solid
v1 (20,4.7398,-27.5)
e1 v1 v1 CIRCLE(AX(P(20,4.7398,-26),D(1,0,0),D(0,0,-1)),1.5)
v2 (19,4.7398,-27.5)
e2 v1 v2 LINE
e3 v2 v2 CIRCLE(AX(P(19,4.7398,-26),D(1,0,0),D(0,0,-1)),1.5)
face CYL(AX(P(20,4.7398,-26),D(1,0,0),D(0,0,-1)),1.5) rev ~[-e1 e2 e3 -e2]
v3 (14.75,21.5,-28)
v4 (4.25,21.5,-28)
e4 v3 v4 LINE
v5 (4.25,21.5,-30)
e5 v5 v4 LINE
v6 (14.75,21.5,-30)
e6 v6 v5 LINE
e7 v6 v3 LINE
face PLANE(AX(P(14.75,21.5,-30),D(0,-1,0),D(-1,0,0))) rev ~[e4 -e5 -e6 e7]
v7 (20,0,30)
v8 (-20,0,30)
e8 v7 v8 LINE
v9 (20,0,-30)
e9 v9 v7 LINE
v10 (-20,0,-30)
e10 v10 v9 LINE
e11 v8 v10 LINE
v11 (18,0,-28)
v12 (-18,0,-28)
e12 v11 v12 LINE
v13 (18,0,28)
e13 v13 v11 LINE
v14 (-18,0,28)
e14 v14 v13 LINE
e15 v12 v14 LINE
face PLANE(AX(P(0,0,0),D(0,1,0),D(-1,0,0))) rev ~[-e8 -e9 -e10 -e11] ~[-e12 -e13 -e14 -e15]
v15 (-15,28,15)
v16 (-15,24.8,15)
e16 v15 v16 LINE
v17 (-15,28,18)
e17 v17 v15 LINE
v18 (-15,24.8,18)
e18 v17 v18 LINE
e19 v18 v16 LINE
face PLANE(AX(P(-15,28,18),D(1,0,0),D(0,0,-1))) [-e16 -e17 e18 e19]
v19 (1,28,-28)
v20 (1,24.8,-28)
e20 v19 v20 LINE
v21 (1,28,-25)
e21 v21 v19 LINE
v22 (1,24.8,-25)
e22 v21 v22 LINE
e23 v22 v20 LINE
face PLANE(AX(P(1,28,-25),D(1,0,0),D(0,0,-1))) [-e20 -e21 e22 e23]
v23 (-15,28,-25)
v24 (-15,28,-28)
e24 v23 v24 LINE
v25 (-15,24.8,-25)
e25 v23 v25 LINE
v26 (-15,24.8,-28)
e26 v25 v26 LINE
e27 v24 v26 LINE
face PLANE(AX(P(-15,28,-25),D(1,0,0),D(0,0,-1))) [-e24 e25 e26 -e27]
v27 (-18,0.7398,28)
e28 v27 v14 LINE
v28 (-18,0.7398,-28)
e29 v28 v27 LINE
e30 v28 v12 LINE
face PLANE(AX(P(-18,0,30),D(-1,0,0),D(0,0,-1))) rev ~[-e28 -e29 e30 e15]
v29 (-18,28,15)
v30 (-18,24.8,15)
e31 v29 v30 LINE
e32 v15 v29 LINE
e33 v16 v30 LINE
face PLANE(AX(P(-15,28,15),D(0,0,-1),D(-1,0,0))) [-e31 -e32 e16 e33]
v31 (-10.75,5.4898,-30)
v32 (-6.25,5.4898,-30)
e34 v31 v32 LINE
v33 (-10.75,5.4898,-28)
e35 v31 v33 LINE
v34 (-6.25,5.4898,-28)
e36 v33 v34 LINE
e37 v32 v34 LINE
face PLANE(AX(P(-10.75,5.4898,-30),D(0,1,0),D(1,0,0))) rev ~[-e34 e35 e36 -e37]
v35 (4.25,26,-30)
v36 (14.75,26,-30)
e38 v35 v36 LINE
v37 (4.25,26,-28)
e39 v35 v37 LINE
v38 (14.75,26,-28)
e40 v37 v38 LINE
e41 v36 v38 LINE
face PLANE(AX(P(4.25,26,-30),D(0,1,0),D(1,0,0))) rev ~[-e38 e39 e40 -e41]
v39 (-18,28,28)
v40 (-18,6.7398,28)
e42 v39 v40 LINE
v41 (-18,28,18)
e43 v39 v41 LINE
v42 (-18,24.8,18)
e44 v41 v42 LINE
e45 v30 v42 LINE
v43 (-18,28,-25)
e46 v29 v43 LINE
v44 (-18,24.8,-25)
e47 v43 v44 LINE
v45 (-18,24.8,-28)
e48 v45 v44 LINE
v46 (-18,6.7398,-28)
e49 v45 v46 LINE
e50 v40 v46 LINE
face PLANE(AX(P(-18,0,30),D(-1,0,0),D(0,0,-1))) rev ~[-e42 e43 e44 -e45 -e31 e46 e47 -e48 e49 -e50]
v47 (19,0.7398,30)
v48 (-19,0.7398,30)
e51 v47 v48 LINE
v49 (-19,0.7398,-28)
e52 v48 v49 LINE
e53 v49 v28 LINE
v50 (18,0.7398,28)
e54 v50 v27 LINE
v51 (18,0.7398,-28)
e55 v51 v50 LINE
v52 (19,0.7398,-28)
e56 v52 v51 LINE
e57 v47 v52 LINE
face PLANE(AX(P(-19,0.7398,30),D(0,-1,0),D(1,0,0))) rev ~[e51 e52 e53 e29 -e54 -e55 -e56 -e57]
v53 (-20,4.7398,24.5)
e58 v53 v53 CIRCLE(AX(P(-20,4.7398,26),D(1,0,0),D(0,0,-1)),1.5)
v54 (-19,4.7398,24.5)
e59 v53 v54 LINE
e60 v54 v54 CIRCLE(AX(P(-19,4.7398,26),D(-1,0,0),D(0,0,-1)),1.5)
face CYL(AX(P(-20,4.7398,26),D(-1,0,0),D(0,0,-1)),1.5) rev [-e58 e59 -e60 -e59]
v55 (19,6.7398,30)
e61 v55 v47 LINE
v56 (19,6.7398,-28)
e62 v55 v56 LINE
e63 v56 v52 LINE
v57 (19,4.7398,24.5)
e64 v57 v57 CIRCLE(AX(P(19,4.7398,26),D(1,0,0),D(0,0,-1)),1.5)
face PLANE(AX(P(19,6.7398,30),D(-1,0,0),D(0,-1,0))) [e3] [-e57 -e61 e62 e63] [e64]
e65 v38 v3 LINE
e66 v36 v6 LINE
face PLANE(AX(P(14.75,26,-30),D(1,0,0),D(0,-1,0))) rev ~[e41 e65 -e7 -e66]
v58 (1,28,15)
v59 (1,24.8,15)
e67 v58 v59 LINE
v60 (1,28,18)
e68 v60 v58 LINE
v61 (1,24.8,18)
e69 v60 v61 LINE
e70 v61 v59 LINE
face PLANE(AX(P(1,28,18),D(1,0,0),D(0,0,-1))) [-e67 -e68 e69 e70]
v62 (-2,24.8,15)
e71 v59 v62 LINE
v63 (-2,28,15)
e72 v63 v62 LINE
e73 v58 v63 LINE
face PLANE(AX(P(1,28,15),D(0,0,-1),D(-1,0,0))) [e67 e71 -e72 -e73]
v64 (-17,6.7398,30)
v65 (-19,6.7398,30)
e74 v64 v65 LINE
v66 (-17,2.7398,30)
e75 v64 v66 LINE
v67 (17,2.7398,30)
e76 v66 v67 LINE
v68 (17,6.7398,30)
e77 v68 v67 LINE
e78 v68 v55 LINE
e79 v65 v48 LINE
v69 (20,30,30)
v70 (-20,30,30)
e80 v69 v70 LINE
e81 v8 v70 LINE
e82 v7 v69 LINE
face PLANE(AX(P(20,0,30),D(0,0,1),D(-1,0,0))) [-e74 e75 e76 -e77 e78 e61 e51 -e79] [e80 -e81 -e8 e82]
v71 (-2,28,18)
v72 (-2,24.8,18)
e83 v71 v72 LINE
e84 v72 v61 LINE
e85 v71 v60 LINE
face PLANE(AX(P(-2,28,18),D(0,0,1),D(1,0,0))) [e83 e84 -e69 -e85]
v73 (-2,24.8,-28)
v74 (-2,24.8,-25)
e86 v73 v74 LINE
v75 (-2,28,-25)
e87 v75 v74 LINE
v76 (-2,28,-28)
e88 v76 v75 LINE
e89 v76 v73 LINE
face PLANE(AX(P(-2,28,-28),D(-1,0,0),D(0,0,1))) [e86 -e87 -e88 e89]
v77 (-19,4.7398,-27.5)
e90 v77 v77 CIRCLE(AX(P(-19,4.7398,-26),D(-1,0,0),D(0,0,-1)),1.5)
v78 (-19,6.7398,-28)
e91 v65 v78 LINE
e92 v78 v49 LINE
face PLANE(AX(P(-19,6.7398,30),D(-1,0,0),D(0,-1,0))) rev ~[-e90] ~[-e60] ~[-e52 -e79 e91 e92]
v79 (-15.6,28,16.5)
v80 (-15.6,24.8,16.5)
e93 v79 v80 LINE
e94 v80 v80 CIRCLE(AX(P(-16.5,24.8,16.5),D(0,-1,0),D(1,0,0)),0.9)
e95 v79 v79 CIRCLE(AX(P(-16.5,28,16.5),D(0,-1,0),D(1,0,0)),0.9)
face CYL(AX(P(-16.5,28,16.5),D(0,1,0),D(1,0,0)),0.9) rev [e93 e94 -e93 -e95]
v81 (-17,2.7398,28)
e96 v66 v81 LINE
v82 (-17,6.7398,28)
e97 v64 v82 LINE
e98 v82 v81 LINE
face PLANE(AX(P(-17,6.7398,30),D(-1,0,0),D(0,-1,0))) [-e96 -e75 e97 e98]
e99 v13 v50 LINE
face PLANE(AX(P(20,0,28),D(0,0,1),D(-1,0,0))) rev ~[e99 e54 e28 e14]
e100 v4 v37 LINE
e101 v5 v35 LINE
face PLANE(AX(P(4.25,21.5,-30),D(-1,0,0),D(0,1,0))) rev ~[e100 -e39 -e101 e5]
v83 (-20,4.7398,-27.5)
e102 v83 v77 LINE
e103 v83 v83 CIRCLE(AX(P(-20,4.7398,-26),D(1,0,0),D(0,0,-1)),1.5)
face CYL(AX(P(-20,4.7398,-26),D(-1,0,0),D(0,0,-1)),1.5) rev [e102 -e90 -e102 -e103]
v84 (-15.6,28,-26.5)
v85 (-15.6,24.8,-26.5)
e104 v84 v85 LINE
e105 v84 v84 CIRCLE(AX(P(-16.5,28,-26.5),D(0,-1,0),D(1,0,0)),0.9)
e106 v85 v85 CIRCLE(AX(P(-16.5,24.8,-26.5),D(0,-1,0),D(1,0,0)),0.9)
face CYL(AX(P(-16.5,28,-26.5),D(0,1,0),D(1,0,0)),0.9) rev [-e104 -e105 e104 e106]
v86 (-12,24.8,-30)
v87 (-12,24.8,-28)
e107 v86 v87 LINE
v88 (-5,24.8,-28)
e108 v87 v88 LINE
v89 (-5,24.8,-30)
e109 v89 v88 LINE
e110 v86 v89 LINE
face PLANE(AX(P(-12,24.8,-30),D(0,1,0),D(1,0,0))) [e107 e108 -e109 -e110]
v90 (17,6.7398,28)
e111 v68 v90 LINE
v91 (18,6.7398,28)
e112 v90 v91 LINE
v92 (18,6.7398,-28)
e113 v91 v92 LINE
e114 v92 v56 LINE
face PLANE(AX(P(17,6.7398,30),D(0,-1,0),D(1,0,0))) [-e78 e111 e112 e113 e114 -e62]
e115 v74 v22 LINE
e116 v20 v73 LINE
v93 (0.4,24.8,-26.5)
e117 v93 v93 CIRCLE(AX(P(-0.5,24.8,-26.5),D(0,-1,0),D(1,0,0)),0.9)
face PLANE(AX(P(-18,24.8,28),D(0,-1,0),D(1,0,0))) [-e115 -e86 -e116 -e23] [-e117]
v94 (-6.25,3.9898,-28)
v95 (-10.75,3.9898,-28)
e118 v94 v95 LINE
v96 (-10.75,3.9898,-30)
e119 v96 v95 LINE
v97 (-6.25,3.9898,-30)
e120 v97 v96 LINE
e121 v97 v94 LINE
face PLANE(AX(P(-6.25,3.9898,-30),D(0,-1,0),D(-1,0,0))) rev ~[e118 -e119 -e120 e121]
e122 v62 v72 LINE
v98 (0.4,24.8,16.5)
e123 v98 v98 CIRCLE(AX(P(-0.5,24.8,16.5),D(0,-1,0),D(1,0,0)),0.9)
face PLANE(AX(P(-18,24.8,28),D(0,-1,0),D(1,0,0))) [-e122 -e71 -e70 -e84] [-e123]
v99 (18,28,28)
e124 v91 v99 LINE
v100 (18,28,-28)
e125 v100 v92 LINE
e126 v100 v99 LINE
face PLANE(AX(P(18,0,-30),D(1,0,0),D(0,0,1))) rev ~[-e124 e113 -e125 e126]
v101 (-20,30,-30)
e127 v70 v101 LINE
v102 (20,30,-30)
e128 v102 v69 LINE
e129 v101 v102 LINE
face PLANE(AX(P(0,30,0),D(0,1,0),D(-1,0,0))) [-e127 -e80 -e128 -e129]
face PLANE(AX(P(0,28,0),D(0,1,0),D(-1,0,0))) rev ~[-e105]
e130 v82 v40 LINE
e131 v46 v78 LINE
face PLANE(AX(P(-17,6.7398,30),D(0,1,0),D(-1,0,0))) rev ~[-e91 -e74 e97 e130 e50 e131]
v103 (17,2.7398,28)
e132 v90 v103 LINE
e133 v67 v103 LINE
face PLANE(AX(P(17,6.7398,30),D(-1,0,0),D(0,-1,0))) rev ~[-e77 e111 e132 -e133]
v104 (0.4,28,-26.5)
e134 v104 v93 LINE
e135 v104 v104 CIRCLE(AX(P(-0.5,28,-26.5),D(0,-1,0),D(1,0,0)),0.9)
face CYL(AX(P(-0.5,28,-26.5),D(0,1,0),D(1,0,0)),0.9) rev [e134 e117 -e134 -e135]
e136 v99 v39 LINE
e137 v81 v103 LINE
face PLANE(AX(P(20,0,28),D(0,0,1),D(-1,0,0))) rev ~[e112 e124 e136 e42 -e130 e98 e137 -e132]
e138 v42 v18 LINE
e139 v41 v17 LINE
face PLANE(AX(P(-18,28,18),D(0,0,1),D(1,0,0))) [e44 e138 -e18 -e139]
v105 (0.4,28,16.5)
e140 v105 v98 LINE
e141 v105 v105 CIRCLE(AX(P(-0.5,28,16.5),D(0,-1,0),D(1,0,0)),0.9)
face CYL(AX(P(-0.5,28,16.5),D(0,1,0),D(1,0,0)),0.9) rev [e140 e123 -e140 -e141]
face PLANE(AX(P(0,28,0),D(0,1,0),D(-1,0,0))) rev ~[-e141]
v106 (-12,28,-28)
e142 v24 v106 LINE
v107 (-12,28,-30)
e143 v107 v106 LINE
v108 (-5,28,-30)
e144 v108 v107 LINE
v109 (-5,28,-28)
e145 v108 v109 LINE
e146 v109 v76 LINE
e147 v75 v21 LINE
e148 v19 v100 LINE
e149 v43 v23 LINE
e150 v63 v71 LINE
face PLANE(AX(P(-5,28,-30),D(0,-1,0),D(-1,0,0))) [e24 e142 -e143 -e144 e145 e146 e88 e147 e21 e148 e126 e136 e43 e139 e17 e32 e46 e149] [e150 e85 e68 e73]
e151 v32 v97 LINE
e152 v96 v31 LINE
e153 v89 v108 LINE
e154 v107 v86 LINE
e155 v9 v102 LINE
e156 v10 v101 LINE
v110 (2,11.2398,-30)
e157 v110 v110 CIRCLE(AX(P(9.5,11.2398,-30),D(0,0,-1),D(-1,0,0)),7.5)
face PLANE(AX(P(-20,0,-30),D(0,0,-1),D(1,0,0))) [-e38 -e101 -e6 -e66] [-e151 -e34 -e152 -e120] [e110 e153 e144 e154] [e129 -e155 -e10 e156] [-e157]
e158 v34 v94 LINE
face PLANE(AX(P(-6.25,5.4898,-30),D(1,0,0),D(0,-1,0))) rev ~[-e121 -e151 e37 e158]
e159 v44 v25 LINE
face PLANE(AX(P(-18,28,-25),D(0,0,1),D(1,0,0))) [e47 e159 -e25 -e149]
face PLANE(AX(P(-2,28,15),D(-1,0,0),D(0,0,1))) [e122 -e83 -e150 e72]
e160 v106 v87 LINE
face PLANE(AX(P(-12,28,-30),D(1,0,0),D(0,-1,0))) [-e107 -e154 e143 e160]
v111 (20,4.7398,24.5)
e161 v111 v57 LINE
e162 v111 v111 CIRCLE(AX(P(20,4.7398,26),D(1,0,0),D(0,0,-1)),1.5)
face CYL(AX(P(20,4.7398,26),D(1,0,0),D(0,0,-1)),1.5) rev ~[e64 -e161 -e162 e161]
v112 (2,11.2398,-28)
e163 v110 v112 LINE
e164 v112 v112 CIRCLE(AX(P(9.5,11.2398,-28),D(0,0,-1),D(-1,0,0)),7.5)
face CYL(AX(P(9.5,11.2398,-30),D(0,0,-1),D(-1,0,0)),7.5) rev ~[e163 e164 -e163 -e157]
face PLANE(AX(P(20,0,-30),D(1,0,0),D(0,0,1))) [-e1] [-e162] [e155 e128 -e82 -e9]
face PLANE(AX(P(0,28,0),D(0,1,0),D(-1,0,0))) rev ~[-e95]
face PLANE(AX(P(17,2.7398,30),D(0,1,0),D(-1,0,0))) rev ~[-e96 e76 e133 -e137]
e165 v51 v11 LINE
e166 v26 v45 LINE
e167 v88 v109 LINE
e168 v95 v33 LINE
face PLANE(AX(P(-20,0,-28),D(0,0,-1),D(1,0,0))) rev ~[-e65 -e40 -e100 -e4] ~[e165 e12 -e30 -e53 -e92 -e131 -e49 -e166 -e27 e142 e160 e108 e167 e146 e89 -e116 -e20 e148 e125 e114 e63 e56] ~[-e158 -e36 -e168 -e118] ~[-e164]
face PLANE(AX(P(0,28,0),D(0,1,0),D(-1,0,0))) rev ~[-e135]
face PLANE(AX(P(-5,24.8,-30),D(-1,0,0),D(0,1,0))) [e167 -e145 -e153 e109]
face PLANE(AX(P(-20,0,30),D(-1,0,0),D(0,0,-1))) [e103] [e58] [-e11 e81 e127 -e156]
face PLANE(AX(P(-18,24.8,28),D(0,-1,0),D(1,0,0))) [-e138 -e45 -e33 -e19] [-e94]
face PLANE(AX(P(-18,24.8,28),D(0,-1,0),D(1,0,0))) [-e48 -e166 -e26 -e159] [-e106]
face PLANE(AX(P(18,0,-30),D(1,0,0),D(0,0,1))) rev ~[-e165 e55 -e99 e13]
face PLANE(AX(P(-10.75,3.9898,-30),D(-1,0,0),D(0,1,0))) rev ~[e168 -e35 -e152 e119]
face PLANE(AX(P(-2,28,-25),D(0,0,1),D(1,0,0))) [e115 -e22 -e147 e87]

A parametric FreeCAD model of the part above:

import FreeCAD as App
import Part
import Sketcher
Q = App.Units.Quantity


def faces_at(feature, points):
    """Names of the faces that lie closest to the given points."""
    faces = feature.Shape.Faces
    near = lambda p: min(range(len(faces)), key=lambda i: faces[i].distToShape(Part.Vertex(*p))[0])
    return sorted({f"Face{near(p) + 1}" for p in points})


def add_polygon(sketch, points):
    """Adds a closed chain of lines whose ends are joined by coincident constraints."""
    first, n = sketch.GeometryCount, len(points)
    for a, b in zip(points, points[1:] + points[:1]):
        sketch.addGeometry(Part.LineSegment(App.Vector(*a, 0), App.Vector(*b, 0)), False)
    for i in range(n):
        sketch.addConstraint(Sketcher.Constraint("Coincident", first + i, 2, first + (i + 1) % n, 1))

doc = App.newDocument("Part")
body = doc.addObject("PartDesign::Body", "Body")

sketch1 = body.newObject("Sketcher::SketchObject", "Sketch")
sketch1.AttachmentSupport = (doc.getObject("XZ_Plane"), [""])
sketch1.MapMode = "FlatFace"
add_polygon(sketch1, [(-20, 30), (20, 30), (20, -30), (-20, -30)])
sketch1.addConstraint(Sketcher.Constraint("Horizontal", 0))
sketch1.addConstraint(Sketcher.Constraint("Vertical", 1))
sketch1.addConstraint(Sketcher.Constraint("Horizontal", 2))
sketch1.addConstraint(Sketcher.Constraint("Vertical", 3))
sketch1.addConstraint(Sketcher.Constraint("Symmetric", 0, 2, 2, 2, -1, 1))
sketch1.addConstraint(Sketcher.Constraint("DistanceX", 0, 1, 0, 2, Q("40 mm")))
sketch1.addConstraint(Sketcher.Constraint("DistanceY", 1, 2, 1, 1, Q("60 mm")))
pad1 = body.newObject("PartDesign::Pad", "Pad")
pad1.Profile = sketch1
pad1.Length = 30
pad1.Reversed = True
doc.recompute()

thickness = body.newObject("PartDesign::Thickness", "Thickness")
thickness.Base = (pad1, faces_at(pad1, [(-6.667, 0, -10)]))
thickness.Value = 2
thickness.Reversed = True
thickness.Join = "Intersection"

sketch2 = body.newObject("Sketcher::SketchObject", "Sketch001")
sketch2.AttachmentSupport = (doc.getObject("XY_Plane"), [""])
sketch2.MapMode = "FlatFace"
sketch2.AttachmentOffset = App.Placement(App.Vector(0, 0, 30), App.Rotation())
add_polygon(sketch2, [(-17, 2.7), (-17, 6.7), (-19, 6.7), (-19, 0.7), (19, 0.7), (19, 6.7), (17, 6.7), (17, 2.7)])
sketch2.addConstraint(Sketcher.Constraint("Vertical", 0))
sketch2.addConstraint(Sketcher.Constraint("Horizontal", 1))
sketch2.addConstraint(Sketcher.Constraint("Vertical", 2))
sketch2.addConstraint(Sketcher.Constraint("Horizontal", 3))
sketch2.addConstraint(Sketcher.Constraint("Vertical", 4))
sketch2.addConstraint(Sketcher.Constraint("Horizontal", 5))
sketch2.addConstraint(Sketcher.Constraint("Vertical", 6))
sketch2.addConstraint(Sketcher.Constraint("Horizontal", 7))
sketch2.addConstraint(Sketcher.Constraint("Symmetric", 1, 2, 4, 2, -2))
sketch2.addConstraint(Sketcher.Constraint("Equal", 1, 5))
sketch2.addConstraint(Sketcher.Constraint("DistanceX", 1, 2, 1, 1, Q("2 mm")))
sketch2.addConstraint(Sketcher.Constraint("DistanceY", 2, 2, 2, 1, Q("6 mm")))
sketch2.addConstraint(Sketcher.Constraint("DistanceY", 3, 2, 6, 2, Q("2 mm")))
sketch2.addConstraint(Sketcher.Constraint("DistanceX", 3, 1, 3, 2, Q("38 mm")))
sketch2.addConstraint(Sketcher.Constraint("DistanceY", -1, 1, 0, 2, Q("6.7398 mm")))
pocket1 = body.newObject("PartDesign::Pocket", "Pocket")
pocket1.Profile = sketch2
pocket1.Length = 58

sketch3 = body.newObject("Sketcher::SketchObject", "Sketch002")
sketch3.AttachmentSupport = (doc.getObject("YZ_Plane"), [""])
sketch3.MapMode = "FlatFace"
sketch3.AttachmentOffset = App.Placement(App.Vector(0, 0, 20), App.Rotation())
sketch3.addGeometry(Part.Circle(App.Vector(4.7, 26, 0), App.Vector(0, 0, 1), 1.5), False)
sketch3.addGeometry(Part.Circle(App.Vector(4.7, -26, 0), App.Vector(0, 0, 1), 1.5), False)
sketch3.addConstraint(Sketcher.Constraint("Equal", 0, 1))
sketch3.addConstraint(Sketcher.Constraint("Symmetric", 0, 3, 1, 3, -1))
sketch3.addConstraint(Sketcher.Constraint("Diameter", 0, Q("3 mm")))
sketch3.addConstraint(Sketcher.Constraint("DistanceY", -1, 1, 0, 3, Q("26 mm")))
sketch3.addConstraint(Sketcher.Constraint("DistanceX", -1, 1, 0, 3, Q("4.7398 mm")))
pocket2 = body.newObject("PartDesign::Pocket", "Pocket001")
pocket2.Profile = sketch3
pocket2.Length = 2
doc.recompute()

mirrored = body.newObject("PartDesign::Mirrored", "Mirrored")
mirrored.Originals = [pocket2]
mirrored.MirrorPlane = (doc.getObject("YZ_Plane"), [""])
body.Tip = mirrored

sketch4 = body.newObject("Sketcher::SketchObject", "Sketch003")
sketch4.AttachmentSupport = (doc.getObject("XZ_Plane"), [""])
sketch4.MapMode = "FlatFace"
sketch4.AttachmentOffset = App.Placement(App.Vector(0, 0, -28), App.Rotation())
add_polygon(sketch4, [(-18, -28), (-15, -28), (-15, -25), (-18, -25)])
sketch4.addGeometry(Part.Circle(App.Vector(-16.5, -26.5, 0), App.Vector(0, 0, 1), 0.9), False)
add_polygon(sketch4, [(-18, 15), (-15, 15), (-15, 18), (-18, 18)])
sketch4.addGeometry(Part.Circle(App.Vector(-16.5, 16.5, 0), App.Vector(0, 0, 1), 0.9), False)
add_polygon(sketch4, [(-2, -28), (1, -28), (1, -25), (-2, -25)])
sketch4.addGeometry(Part.Circle(App.Vector(-0.5, -26.5, 0), App.Vector(0, 0, 1), 0.9), False)
add_polygon(sketch4, [(-2, 15), (1, 15), (1, 18), (-2, 18)])
sketch4.addGeometry(Part.Circle(App.Vector(-0.5, 16.5, 0), App.Vector(0, 0, 1), 0.9), False)
sketch4.addConstraint(Sketcher.Constraint("Horizontal", 0))
sketch4.addConstraint(Sketcher.Constraint("Vertical", 1))
sketch4.addConstraint(Sketcher.Constraint("Horizontal", 2))
sketch4.addConstraint(Sketcher.Constraint("Vertical", 3))
sketch4.addConstraint(Sketcher.Constraint("Horizontal", 5))
sketch4.addConstraint(Sketcher.Constraint("Vertical", 6))
sketch4.addConstraint(Sketcher.Constraint("Horizontal", 7))
sketch4.addConstraint(Sketcher.Constraint("Vertical", 8))
sketch4.addConstraint(Sketcher.Constraint("Horizontal", 10))
sketch4.addConstraint(Sketcher.Constraint("Vertical", 11))
sketch4.addConstraint(Sketcher.Constraint("Horizontal", 12))
sketch4.addConstraint(Sketcher.Constraint("Vertical", 13))
sketch4.addConstraint(Sketcher.Constraint("Horizontal", 15))
sketch4.addConstraint(Sketcher.Constraint("Vertical", 16))
sketch4.addConstraint(Sketcher.Constraint("Horizontal", 17))
sketch4.addConstraint(Sketcher.Constraint("Vertical", 18))
sketch4.addConstraint(Sketcher.Constraint("Equal", 4, 9))
sketch4.addConstraint(Sketcher.Constraint("Equal", 9, 14))
sketch4.addConstraint(Sketcher.Constraint("Equal", 14, 19))
sketch4.addConstraint(Sketcher.Constraint("Horizontal", 4, 3, 14, 3))
sketch4.addConstraint(Sketcher.Constraint("Horizontal", 9, 3, 19, 3))
sketch4.addConstraint(Sketcher.Constraint("Horizontal", 3, 2, 10, 2))
sketch4.addConstraint(Sketcher.Constraint("Horizontal", 2, 2, 11, 2))
sketch4.addConstraint(Sketcher.Constraint("Horizontal", 8, 2, 15, 2))
sketch4.addConstraint(Sketcher.Constraint("Horizontal", 7, 2, 16, 2))
sketch4.addConstraint(Sketcher.Constraint("Vertical", 4, 3, 9, 3))
sketch4.addConstraint(Sketcher.Constraint("Vertical", 14, 3, 19, 3))
sketch4.addConstraint(Sketcher.Constraint("Vertical", 1, 2, 5, 2))
sketch4.addConstraint(Sketcher.Constraint("Vertical", 3, 2, 7, 2))
sketch4.addConstraint(Sketcher.Constraint("Vertical", 11, 2, 15, 2))
sketch4.addConstraint(Sketcher.Constraint("Vertical", 13, 2, 17, 2))
sketch4.addConstraint(Sketcher.Constraint("Equal", 7, 10))
sketch4.addConstraint(Sketcher.Constraint("Equal", 17, 1))
sketch4.addConstraint(Sketcher.Constraint("Equal", 3, 6))
sketch4.addConstraint(Sketcher.Constraint("Diameter", 4, Q("1.8 mm")))
sketch4.addConstraint(Sketcher.Constraint("DistanceX", 0, 1, 0, 2, Q("3 mm")))
sketch4.addConstraint(Sketcher.Constraint("DistanceX", 2, 2, -1, 1, Q("18 mm")))
sketch4.addConstraint(Sketcher.Constraint("DistanceY", -1, 1, 6, 2, Q("18 mm")))
sketch4.addConstraint(Sketcher.Constraint("DistanceX", -1, 1, 10, 2, Q("1 mm")))
sketch4.addConstraint(Sketcher.Constraint("DistanceY", 4, 3, 9, 3, Q("43 mm")))
sketch4.addConstraint(Sketcher.Constraint("DistanceX", 4, 3, 14, 3, Q("16 mm")))
sketch4.addConstraint(Sketcher.Constraint("DistanceY", 1, 2, 6, 2, Q("43 mm")))
sketch4.addConstraint(Sketcher.Constraint("DistanceX", 4, 3, -1, 1, Q("16.5 mm")))
sketch4.addConstraint(Sketcher.Constraint("DistanceY", 4, 3, -1, 1, Q("26.5 mm")))
pad2 = body.newObject("PartDesign::Pad", "Pad001")
pad2.Profile = sketch4
pad2.Length = 3.2

sketch5 = body.newObject("Sketcher::SketchObject", "Sketch004")
sketch5.AttachmentSupport = (doc.getObject("XY_Plane"), [""])
sketch5.MapMode = "FlatFace"
sketch5.AttachmentOffset = App.Placement(App.Vector(0, 0, -30), App.Rotation())
add_polygon(sketch5, [(-5, 24.8), (-12, 24.8), (-12, 28), (-5, 28)])
sketch5.addConstraint(Sketcher.Constraint("Horizontal", 0))
sketch5.addConstraint(Sketcher.Constraint("Vertical", 1))
sketch5.addConstraint(Sketcher.Constraint("Horizontal", 2))
sketch5.addConstraint(Sketcher.Constraint("Vertical", 3))
sketch5.addConstraint(Sketcher.Constraint("DistanceX", 0, 2, 0, 1, Q("7 mm")))
sketch5.addConstraint(Sketcher.Constraint("DistanceY", 1, 1, 1, 2, Q("3.2 mm")))
sketch5.addConstraint(Sketcher.Constraint("DistanceX", 0, 2, -1, 1, Q("12 mm")))
sketch5.addConstraint(Sketcher.Constraint("DistanceY", -1, 1, 1, 2, Q("28 mm")))
pocket3 = body.newObject("PartDesign::Pocket", "Pocket002")
pocket3.Profile = sketch5
pocket3.Length = 2
pocket3.Reversed = True

sketch6 = body.newObject("Sketcher::SketchObject", "Sketch005")
sketch6.AttachmentSupport = (doc.getObject("XY_Plane"), [""])
sketch6.MapMode = "FlatFace"
sketch6.AttachmentOffset = App.Placement(App.Vector(0, 0, -30), App.Rotation())
sketch6.addGeometry(Part.Circle(App.Vector(9.5, 11.2, 0), App.Vector(0, 0, 1), 7.5), False)
add_polygon(sketch6, [(14.8, 26), (14.8, 21.5), (4.2, 21.5), (4.2, 26)])
add_polygon(sketch6, [(-6.2, 5.5), (-6.2, 4), (-10.8, 4), (-10.8, 5.5)])
sketch6.addConstraint(Sketcher.Constraint("Vertical", 1))
sketch6.addConstraint(Sketcher.Constraint("Horizontal", 2))
sketch6.addConstraint(Sketcher.Constraint("Vertical", 3))
sketch6.addConstraint(Sketcher.Constraint("Horizontal", 4))
sketch6.addConstraint(Sketcher.Constraint("Vertical", 5))
sketch6.addConstraint(Sketcher.Constraint("Horizontal", 6))
sketch6.addConstraint(Sketcher.Constraint("Vertical", 7))
sketch6.addConstraint(Sketcher.Constraint("Horizontal", 8))
sketch6.addConstraint(Sketcher.Constraint("Equal", 8, 1))
sketch6.addConstraint(Sketcher.Constraint("Diameter", 0, Q("15 mm")))
sketch6.addConstraint(Sketcher.Constraint("DistanceX", 2, 2, 2, 1, Q("10.5 mm")))
sketch6.addConstraint(Sketcher.Constraint("DistanceX", 6, 2, 6, 1, Q("4.5 mm")))
sketch6.addConstraint(Sketcher.Constraint("DistanceY", 5, 2, 5, 1, Q("1.5 mm")))
sketch6.addConstraint(Sketcher.Constraint("DistanceX", 6, 2, 2, 2, Q("15 mm")))
sketch6.addConstraint(Sketcher.Constraint("DistanceY", -1, 1, 3, 2, Q("26 mm")))
sketch6.addConstraint(Sketcher.Constraint("DistanceX", -1, 1, 0, 3, Q("9.5 mm")))
sketch6.addConstraint(Sketcher.Constraint("DistanceX", -1, 1, 1, 2, Q("14.75 mm")))
sketch6.addConstraint(Sketcher.Constraint("DistanceY", 5, 2, 0, 3, Q("7.25 mm")))
sketch6.addConstraint(Sketcher.Constraint("DistanceY", -1, 1, 0, 3, Q("11.2398 mm")))
pocket4 = body.newObject("PartDesign::Pocket", "Pocket003")
pocket4.Profile = sketch6
pocket4.Length = 2
pocket4.Reversed = True

doc.recompute()
